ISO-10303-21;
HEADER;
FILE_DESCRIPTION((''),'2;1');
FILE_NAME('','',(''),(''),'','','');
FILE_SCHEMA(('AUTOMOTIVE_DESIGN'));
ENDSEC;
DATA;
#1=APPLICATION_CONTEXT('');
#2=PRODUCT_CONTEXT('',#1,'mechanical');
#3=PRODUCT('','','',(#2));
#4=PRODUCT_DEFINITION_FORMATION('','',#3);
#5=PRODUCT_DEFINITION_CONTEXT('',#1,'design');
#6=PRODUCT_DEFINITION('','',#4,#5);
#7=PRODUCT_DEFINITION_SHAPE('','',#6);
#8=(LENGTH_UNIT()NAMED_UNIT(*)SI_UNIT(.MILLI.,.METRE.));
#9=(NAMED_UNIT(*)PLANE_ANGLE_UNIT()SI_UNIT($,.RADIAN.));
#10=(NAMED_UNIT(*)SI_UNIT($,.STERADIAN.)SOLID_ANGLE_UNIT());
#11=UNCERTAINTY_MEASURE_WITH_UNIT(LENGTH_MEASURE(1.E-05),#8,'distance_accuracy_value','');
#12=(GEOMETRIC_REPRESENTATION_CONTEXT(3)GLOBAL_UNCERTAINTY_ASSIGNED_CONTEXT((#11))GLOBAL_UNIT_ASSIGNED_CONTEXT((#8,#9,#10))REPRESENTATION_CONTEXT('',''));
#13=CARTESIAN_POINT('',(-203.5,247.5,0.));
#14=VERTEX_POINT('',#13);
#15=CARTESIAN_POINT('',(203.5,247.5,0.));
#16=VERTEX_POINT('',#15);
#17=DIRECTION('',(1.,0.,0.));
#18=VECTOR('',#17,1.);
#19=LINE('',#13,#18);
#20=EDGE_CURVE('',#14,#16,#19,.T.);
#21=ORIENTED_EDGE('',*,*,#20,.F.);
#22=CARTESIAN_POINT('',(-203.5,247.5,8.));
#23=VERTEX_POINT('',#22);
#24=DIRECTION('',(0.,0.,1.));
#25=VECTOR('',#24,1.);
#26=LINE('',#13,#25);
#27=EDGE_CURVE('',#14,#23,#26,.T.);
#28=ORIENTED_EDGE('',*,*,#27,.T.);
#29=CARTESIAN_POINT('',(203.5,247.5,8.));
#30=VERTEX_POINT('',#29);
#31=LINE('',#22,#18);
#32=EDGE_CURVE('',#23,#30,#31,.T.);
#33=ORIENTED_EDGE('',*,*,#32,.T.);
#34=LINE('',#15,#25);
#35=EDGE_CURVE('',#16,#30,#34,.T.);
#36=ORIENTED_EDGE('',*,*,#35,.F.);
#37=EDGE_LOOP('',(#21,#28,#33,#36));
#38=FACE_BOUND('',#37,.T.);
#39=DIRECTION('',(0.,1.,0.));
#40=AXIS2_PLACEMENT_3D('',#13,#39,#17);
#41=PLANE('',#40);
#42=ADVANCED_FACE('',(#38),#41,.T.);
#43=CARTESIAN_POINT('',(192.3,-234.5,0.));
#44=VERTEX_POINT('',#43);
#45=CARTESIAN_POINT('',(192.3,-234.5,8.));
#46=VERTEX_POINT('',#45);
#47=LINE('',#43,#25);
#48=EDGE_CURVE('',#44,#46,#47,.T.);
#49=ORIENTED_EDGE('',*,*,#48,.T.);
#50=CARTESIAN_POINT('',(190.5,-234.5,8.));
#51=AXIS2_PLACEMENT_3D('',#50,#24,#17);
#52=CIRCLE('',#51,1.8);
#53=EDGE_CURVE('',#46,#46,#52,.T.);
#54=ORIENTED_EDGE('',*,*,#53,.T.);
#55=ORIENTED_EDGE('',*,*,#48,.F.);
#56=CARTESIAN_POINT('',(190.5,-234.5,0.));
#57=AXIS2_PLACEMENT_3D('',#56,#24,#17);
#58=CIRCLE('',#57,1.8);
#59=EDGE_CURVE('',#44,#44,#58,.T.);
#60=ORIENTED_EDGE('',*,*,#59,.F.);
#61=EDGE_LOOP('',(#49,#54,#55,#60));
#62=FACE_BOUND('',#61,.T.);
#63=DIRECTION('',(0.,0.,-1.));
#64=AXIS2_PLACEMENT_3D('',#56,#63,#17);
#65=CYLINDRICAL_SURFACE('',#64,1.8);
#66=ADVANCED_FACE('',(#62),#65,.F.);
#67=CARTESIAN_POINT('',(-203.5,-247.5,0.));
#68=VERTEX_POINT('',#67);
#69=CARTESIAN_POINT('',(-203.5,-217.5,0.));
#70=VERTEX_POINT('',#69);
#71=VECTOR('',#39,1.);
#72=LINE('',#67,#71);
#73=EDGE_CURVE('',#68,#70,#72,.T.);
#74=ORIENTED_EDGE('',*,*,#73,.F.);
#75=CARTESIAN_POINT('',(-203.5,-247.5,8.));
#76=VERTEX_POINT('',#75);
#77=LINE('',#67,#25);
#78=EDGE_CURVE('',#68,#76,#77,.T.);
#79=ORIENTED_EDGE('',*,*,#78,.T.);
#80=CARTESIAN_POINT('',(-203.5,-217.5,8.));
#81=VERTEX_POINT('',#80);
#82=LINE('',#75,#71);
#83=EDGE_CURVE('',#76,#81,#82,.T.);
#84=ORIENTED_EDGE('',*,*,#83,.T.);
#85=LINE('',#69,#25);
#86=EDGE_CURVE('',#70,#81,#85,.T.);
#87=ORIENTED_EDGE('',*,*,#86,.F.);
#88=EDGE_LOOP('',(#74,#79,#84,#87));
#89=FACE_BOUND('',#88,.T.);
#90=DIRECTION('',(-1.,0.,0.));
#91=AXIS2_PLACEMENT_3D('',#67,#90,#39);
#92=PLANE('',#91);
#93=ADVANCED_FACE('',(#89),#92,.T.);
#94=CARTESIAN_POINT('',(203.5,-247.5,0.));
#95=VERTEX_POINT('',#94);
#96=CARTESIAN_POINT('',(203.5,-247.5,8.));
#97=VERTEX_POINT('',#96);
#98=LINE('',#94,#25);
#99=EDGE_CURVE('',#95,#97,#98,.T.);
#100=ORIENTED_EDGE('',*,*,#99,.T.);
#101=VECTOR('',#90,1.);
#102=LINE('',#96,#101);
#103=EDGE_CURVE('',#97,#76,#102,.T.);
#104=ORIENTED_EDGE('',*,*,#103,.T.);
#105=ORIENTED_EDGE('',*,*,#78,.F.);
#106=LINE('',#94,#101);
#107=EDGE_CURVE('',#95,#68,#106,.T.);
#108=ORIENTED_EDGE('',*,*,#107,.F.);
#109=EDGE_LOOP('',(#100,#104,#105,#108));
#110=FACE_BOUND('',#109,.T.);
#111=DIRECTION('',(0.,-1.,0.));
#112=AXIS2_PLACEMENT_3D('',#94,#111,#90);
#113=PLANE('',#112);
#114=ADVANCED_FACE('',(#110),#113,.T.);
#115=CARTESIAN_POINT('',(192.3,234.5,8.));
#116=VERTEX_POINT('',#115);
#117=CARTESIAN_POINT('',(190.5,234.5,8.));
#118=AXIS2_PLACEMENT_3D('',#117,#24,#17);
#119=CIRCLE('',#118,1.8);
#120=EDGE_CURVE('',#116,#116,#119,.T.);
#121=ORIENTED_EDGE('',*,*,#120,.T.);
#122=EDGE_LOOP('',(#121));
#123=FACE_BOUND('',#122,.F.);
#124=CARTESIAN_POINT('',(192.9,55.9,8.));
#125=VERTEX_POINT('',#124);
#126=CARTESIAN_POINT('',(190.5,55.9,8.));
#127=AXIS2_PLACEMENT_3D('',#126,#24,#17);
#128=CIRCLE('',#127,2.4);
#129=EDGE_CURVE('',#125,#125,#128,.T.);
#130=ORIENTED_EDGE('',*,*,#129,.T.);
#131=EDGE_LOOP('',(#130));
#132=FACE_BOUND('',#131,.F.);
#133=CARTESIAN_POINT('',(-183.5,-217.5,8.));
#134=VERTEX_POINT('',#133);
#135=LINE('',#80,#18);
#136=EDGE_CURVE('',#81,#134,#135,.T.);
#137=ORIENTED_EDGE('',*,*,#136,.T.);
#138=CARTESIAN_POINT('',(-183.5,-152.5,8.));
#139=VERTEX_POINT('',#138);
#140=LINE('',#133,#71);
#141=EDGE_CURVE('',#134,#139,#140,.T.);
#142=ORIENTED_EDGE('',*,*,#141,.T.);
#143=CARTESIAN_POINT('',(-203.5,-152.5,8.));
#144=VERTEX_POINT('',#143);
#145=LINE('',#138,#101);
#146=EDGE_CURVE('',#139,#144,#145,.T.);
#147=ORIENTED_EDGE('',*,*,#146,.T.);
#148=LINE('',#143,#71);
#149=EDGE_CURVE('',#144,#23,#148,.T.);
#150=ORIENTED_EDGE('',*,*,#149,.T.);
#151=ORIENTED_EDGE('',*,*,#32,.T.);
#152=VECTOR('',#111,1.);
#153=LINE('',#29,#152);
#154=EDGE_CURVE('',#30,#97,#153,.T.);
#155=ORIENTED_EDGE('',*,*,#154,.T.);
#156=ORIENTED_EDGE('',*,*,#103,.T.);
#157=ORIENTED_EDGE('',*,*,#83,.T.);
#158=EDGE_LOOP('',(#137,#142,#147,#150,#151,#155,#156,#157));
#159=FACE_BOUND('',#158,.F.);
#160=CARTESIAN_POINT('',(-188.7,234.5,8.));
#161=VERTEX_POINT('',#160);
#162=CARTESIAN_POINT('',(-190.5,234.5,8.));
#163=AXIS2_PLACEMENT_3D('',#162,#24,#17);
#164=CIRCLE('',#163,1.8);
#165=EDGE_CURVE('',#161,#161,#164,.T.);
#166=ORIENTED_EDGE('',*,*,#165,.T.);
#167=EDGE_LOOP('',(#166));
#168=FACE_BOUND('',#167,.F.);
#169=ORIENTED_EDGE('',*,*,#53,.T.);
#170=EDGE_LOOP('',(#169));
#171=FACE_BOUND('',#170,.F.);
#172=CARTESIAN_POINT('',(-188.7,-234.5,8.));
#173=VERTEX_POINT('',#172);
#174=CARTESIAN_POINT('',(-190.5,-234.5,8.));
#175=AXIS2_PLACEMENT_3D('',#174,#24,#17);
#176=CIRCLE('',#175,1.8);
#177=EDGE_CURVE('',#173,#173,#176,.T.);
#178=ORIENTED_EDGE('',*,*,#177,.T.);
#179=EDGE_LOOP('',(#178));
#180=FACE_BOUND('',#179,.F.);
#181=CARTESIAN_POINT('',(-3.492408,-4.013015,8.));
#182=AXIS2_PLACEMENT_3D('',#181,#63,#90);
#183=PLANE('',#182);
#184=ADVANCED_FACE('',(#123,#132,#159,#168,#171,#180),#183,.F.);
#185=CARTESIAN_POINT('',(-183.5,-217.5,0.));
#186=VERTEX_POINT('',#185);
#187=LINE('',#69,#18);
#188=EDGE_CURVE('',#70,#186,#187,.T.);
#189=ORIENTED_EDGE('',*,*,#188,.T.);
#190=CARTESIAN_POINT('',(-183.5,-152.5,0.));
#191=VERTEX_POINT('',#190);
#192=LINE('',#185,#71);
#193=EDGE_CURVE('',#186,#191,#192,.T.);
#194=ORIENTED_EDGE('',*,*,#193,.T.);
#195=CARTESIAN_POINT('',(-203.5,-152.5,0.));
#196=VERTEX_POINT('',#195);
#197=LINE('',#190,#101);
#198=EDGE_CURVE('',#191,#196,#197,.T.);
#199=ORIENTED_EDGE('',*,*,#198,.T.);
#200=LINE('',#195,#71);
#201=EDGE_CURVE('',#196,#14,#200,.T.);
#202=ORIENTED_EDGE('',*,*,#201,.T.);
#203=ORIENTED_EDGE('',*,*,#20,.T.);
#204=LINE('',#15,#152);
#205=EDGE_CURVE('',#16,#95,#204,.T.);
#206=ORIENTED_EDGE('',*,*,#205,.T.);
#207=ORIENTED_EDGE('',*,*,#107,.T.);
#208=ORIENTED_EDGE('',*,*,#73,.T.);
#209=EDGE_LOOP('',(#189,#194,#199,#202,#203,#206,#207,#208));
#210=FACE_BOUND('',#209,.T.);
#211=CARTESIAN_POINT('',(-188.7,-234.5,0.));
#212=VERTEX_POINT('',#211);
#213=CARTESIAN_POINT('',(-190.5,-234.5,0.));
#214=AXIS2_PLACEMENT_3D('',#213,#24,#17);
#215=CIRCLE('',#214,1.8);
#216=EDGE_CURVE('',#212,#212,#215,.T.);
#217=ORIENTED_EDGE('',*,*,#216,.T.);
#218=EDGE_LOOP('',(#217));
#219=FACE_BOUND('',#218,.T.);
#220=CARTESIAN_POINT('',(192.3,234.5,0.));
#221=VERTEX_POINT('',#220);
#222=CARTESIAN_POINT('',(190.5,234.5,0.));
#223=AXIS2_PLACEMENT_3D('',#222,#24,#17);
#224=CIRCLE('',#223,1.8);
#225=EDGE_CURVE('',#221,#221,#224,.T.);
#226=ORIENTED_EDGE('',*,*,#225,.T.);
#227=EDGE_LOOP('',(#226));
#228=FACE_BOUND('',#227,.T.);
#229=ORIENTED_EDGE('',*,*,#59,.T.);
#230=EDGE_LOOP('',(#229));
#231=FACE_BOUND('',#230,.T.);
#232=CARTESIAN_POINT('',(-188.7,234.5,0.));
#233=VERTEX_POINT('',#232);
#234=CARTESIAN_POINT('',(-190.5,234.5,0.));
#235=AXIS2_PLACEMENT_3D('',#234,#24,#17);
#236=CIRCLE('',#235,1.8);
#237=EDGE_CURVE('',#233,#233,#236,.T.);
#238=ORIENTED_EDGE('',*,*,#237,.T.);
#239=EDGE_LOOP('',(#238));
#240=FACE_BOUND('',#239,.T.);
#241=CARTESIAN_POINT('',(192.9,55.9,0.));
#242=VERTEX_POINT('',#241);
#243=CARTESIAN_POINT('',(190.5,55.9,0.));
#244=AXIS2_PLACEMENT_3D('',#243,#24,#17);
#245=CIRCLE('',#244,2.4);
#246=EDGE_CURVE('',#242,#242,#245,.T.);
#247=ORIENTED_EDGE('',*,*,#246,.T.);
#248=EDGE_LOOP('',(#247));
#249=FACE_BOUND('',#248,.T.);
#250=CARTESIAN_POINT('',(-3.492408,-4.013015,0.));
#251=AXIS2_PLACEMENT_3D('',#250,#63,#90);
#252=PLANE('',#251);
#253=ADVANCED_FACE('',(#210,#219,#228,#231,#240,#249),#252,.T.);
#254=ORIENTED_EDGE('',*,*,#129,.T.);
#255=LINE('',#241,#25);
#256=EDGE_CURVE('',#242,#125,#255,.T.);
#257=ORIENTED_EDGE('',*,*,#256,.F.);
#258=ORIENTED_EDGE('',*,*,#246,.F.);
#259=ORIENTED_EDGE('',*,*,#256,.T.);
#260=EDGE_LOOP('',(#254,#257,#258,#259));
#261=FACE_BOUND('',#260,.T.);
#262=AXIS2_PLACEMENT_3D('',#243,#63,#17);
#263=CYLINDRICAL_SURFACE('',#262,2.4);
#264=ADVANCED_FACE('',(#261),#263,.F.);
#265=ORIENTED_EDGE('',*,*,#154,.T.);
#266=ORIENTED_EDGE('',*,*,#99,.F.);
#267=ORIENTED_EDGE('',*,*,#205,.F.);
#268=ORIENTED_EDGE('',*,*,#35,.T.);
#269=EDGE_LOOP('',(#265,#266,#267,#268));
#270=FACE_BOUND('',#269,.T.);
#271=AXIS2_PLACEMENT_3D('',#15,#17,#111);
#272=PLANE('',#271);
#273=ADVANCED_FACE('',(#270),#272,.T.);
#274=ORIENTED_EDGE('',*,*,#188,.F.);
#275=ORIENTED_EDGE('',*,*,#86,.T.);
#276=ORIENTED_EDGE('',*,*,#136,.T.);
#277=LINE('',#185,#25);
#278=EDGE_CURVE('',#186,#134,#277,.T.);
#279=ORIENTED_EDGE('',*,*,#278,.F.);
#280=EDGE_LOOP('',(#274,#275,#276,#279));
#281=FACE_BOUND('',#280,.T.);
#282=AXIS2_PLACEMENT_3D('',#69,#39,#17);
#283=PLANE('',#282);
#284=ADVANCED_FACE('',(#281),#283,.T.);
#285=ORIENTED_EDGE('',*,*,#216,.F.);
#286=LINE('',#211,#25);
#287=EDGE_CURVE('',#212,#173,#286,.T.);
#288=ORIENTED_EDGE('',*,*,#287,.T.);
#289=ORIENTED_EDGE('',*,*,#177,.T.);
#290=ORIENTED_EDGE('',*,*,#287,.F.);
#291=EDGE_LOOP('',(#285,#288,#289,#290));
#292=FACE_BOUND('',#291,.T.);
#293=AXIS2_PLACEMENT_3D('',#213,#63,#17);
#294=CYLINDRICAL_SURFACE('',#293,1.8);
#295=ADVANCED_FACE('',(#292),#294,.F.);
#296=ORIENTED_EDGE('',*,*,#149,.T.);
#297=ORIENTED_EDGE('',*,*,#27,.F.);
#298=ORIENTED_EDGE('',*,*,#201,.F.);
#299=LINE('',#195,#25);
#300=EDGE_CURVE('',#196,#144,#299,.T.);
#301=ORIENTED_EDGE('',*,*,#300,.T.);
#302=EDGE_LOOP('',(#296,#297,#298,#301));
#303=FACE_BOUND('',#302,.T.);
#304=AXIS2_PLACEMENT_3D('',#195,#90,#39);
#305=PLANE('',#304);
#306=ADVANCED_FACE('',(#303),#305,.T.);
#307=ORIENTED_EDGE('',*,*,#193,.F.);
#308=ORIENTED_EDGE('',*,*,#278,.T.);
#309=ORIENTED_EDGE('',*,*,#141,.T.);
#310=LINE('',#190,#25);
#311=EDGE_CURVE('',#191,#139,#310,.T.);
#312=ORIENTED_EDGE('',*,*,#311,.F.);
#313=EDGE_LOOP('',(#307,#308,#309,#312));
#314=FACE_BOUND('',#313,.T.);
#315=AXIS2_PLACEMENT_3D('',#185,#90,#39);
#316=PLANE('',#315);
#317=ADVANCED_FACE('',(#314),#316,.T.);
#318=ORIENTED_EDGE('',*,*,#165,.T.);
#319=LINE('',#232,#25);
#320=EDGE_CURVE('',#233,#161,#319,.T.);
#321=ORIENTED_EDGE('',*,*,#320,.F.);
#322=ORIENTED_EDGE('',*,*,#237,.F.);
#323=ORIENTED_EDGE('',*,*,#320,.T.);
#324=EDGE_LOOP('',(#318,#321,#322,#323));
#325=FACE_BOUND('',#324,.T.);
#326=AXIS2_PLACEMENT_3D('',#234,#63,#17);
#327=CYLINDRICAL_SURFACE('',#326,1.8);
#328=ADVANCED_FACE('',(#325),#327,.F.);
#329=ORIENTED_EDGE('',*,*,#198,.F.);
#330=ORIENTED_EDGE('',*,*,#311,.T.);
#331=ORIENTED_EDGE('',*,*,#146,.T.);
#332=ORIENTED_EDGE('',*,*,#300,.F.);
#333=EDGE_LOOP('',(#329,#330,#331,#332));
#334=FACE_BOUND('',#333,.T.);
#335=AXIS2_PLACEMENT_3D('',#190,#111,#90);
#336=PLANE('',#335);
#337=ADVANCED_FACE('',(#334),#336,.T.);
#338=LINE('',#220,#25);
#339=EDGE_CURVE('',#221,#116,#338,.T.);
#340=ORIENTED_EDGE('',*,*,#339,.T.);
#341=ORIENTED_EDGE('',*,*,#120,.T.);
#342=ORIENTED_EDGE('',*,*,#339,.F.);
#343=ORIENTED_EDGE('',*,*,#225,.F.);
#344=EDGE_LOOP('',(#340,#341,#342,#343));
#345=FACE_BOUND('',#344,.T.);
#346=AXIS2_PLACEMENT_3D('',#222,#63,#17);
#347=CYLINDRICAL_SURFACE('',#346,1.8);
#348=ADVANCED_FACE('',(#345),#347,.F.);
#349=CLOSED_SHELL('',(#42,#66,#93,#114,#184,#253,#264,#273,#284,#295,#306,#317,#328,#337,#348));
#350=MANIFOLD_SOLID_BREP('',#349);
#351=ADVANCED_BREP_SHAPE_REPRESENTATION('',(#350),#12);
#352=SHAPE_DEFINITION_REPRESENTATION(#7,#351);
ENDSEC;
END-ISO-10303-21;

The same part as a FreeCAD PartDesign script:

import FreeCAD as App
import Part
import Sketcher
from FreeCAD import Vector

doc = App.newDocument("Part")
body = doc.addObject("PartDesign::Body", "Body")

# Sketch on XY plane
sketch1 = doc.addObject("Sketcher::SketchObject", "Sketch")
body.addObject(sketch1)
sketch1.AttachmentSupport = (doc.XY_Plane, [""])
sketch1.MapMode = "FlatFace"
sketch1.addGeometry([
    Part.LineSegment(Vector(203.5, 247.5, 0), Vector(-203.5, 247.5, 0)),  # 0
    Part.LineSegment(Vector(-203.5, 247.5, 0), Vector(-203.5, -152.5, 0)),  # 1
    Part.LineSegment(Vector(-203.5, -152.5, 0), Vector(-183.5, -152.5, 0)),  # 2
    Part.LineSegment(Vector(-183.5, -152.5, 0), Vector(-183.5, -217.5, 0)),  # 3
    Part.LineSegment(Vector(-183.5, -217.5, 0), Vector(-203.5, -217.5, 0)),  # 4
    Part.LineSegment(Vector(-203.5, -217.5, 0), Vector(-203.5, -247.5, 0)),  # 5
    Part.LineSegment(Vector(-203.5, -247.5, 0), Vector(203.5, -247.5, 0)),  # 6
    Part.LineSegment(Vector(203.5, -247.5, 0), Vector(203.5, 247.5, 0)),  # 7
    Part.Circle(Vector(190.5, -234.5, 0), Vector(0, 0, 1), 1.8),  # 8
    Part.Circle(Vector(-190.5, -234.5, 0), Vector(0, 0, 1), 1.8),  # 9
    Part.Circle(Vector(190.5, 55.9, 0), Vector(0, 0, 1), 2.4),  # 10
    Part.Circle(Vector(190.5, 234.5, 0), Vector(0, 0, 1), 1.8),  # 11
    Part.Circle(Vector(-190.5, 234.5, 0), Vector(0, 0, 1), 1.8),  # 12
], False)
sketch1.addConstraint([
    Sketcher.Constraint("Coincident", 0, 2, 1, 1),
    Sketcher.Constraint("Coincident", 1, 2, 2, 1),
    Sketcher.Constraint("Coincident", 2, 2, 3, 1),
    Sketcher.Constraint("Coincident", 3, 2, 4, 1),
    Sketcher.Constraint("Coincident", 4, 2, 5, 1),
    Sketcher.Constraint("Coincident", 5, 2, 6, 1),
    Sketcher.Constraint("Coincident", 6, 2, 7, 1),
    Sketcher.Constraint("Coincident", 7, 2, 0, 1),
    Sketcher.Constraint("Horizontal", 0),
    Sketcher.Constraint("Vertical", 1),
    Sketcher.Constraint("Horizontal", 2),
    Sketcher.Constraint("Vertical", 3),
    Sketcher.Constraint("Horizontal", 4),
    Sketcher.Constraint("Vertical", 5),
    Sketcher.Constraint("Horizontal", 6),
    Sketcher.Constraint("Vertical", 7),
    Sketcher.Constraint("Equal", 8, 9),
    Sketcher.Constraint("Equal", 9, 11),
    Sketcher.Constraint("Equal", 11, 12),
    Sketcher.Constraint("Symmetric", 9, 3, 11, 3, -1, 1),
    Sketcher.Constraint("Symmetric", 8, 3, 12, 3, -1, 1),
    Sketcher.Constraint("Symmetric", 0, 2, 6, 2, -1, 1),
    Sketcher.Constraint("Symmetric", 8, 3, 9, 3, -2),
    Sketcher.Constraint("Vertical", 8, 3, 10, 3),
    Sketcher.Constraint("Vertical", 1, 2, 4, 2),
    Sketcher.Constraint("Diameter", 8, 3.6),
    Sketcher.Constraint("Diameter", 10, 4.8),
    Sketcher.Constraint("DistanceX", 0, 2, 0, 1, 407.0),
    Sketcher.Constraint("DistanceX", 2, 1, 2, 2, 20.0),
    Sketcher.Constraint("DistanceY", 1, 2, 1, 1, 400.0),
    Sketcher.Constraint("DistanceY", 3, 2, 3, 1, 65.0),
    Sketcher.Constraint("DistanceY", 5, 2, 5, 1, 30.0),
    Sketcher.Constraint("DistanceX", 9, 3, 8, 3, 381.0),
    Sketcher.Constraint("DistanceY", 8, 3, 11, 3, 469.0),
    Sketcher.Constraint("DistanceY", -1, 1, 10, 3, 55.9),
])
pad1 = doc.addObject("PartDesign::Pad", "Pad")
body.addObject(pad1)
pad1.Profile = sketch1
pad1.Length = 8

doc.recompute()
